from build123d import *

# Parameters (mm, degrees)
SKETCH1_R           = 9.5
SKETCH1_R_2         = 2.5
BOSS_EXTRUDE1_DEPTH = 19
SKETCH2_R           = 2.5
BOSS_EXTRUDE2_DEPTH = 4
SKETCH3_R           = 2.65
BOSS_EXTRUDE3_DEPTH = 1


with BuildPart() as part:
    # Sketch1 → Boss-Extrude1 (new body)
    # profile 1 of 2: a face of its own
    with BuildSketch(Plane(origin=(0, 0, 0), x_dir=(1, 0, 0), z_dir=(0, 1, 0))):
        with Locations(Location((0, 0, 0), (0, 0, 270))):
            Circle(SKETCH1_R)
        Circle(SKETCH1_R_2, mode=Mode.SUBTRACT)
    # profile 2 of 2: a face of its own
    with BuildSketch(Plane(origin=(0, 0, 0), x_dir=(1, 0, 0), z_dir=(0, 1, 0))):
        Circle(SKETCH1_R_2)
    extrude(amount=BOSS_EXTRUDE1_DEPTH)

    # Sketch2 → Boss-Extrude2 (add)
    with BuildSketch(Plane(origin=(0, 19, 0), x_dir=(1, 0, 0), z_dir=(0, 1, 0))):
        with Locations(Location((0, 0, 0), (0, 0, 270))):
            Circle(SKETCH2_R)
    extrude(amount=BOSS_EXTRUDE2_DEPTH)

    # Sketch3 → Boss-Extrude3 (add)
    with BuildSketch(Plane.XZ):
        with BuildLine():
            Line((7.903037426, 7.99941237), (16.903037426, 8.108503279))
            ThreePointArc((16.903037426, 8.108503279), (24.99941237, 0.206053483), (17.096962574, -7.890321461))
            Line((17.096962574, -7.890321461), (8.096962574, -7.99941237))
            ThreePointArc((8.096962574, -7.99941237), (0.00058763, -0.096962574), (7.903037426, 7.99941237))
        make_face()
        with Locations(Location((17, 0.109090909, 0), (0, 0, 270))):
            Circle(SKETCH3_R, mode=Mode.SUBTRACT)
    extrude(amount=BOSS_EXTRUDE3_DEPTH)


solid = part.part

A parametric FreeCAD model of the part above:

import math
import FreeCAD as App
import Part
import Sketcher
from FreeCAD import Vector
Q = App.Units.Quantity

doc = App.newDocument("Part")
body = doc.addObject("PartDesign::Body", "Body")

# Sketch on XZ plane
sketch1 = doc.addObject("Sketcher::SketchObject", "Sketch")
body.addObject(sketch1)
sketch1.AttachmentSupport = (doc.XZ_Plane, [""])
sketch1.MapMode = "FlatFace"
sketch1.addGeometry(Part.Circle(Vector(0, 0, 0), Vector(0, 0, 1), 10), False)
sketch1.addConstraint([
    Sketcher.Constraint("Coincident", 0, 3, -1, 1),
    Sketcher.Constraint("Diameter", 0, Q("19 mm")),
])
pad1 = doc.addObject("PartDesign::Pad", "Pad")
body.addObject(pad1)
pad1.Profile = sketch1
pad1.Length = 19
pad1.Reversed = True

# Sketch on XZ plane
sketch2 = doc.addObject("Sketcher::SketchObject", "Sketch001")
body.addObject(sketch2)
sketch2.AttachmentSupport = (doc.XZ_Plane, [""])
sketch2.MapMode = "FlatFace"
sketch2.AttachmentOffset = App.Placement(Vector(0, 0, -19), App.Rotation())
sketch2.addGeometry(Part.Circle(Vector(0, 0, 0), Vector(0, 0, 1), 2.5), False)
sketch2.addConstraint([
    Sketcher.Constraint("Coincident", 0, 3, -1, 1),
    Sketcher.Constraint("Diameter", 0, Q("5 mm")),
])
pad2 = doc.addObject("PartDesign::Pad", "Pad001")
body.addObject(pad2)
pad2.Profile = sketch2
pad2.Length = 4
pad2.Reversed = True

# Sketch on XZ plane
sketch3 = doc.addObject("Sketcher::SketchObject", "Sketch002")
body.addObject(sketch3)
sketch3.AttachmentSupport = (doc.XZ_Plane, [""])
sketch3.MapMode = "FlatFace"
sketch3.addGeometry([
    Part.LineSegment(Vector(16.9, 8.1, 0), Vector(7.9, 8, 0)),  # 0
    Part.ArcOfCircle(Part.Circle(Vector(8, 0, 0), Vector(0, 0, 1), 8), math.radians(91), math.radians(271)),  # 1
    Part.LineSegment(Vector(8.1, -8, 0), Vector(17.1, -7.9, 0)),  # 2
    Part.ArcOfCircle(Part.Circle(Vector(17, 0.1, 0), Vector(0, 0, 1), 8), math.radians(-89), math.radians(91)),  # 3
    Part.Circle(Vector(17, 0.1, 0), Vector(0, 0, 1), 2.6),  # 4
], False)
sketch3.addConstraint([
    Sketcher.Constraint("Tangent", 0, 2, 1, 1),
    Sketcher.Constraint("Tangent", 1, 2, 2, 1),
    Sketcher.Constraint("Tangent", 2, 2, 3, 1),
    Sketcher.Constraint("Tangent", 3, 2, 0, 1),
    Sketcher.Constraint("Coincident", 4, 3, 3, 3),
    Sketcher.Constraint("Equal", 1, 3),
    Sketcher.Constraint("PointOnObject", 1, 3, -1),
    Sketcher.Constraint("Radius", 1, Q("8 mm")),
    Sketcher.Constraint("Diameter", 4, Q("5.3 mm")),
    Sketcher.Constraint("DistanceX", -1, 1, 1, 3, Q("8 mm")),
    Sketcher.Constraint("DistanceX", -1, 1, 3, 3, Q("17 mm")),
    Sketcher.Constraint("Distance", 0, Q("9.000661 mm")),
])
pad3 = doc.addObject("PartDesign::Pad", "Pad002")
body.addObject(pad3)
pad3.Profile = sketch3
pad3.Length = 1

doc.recompute()
